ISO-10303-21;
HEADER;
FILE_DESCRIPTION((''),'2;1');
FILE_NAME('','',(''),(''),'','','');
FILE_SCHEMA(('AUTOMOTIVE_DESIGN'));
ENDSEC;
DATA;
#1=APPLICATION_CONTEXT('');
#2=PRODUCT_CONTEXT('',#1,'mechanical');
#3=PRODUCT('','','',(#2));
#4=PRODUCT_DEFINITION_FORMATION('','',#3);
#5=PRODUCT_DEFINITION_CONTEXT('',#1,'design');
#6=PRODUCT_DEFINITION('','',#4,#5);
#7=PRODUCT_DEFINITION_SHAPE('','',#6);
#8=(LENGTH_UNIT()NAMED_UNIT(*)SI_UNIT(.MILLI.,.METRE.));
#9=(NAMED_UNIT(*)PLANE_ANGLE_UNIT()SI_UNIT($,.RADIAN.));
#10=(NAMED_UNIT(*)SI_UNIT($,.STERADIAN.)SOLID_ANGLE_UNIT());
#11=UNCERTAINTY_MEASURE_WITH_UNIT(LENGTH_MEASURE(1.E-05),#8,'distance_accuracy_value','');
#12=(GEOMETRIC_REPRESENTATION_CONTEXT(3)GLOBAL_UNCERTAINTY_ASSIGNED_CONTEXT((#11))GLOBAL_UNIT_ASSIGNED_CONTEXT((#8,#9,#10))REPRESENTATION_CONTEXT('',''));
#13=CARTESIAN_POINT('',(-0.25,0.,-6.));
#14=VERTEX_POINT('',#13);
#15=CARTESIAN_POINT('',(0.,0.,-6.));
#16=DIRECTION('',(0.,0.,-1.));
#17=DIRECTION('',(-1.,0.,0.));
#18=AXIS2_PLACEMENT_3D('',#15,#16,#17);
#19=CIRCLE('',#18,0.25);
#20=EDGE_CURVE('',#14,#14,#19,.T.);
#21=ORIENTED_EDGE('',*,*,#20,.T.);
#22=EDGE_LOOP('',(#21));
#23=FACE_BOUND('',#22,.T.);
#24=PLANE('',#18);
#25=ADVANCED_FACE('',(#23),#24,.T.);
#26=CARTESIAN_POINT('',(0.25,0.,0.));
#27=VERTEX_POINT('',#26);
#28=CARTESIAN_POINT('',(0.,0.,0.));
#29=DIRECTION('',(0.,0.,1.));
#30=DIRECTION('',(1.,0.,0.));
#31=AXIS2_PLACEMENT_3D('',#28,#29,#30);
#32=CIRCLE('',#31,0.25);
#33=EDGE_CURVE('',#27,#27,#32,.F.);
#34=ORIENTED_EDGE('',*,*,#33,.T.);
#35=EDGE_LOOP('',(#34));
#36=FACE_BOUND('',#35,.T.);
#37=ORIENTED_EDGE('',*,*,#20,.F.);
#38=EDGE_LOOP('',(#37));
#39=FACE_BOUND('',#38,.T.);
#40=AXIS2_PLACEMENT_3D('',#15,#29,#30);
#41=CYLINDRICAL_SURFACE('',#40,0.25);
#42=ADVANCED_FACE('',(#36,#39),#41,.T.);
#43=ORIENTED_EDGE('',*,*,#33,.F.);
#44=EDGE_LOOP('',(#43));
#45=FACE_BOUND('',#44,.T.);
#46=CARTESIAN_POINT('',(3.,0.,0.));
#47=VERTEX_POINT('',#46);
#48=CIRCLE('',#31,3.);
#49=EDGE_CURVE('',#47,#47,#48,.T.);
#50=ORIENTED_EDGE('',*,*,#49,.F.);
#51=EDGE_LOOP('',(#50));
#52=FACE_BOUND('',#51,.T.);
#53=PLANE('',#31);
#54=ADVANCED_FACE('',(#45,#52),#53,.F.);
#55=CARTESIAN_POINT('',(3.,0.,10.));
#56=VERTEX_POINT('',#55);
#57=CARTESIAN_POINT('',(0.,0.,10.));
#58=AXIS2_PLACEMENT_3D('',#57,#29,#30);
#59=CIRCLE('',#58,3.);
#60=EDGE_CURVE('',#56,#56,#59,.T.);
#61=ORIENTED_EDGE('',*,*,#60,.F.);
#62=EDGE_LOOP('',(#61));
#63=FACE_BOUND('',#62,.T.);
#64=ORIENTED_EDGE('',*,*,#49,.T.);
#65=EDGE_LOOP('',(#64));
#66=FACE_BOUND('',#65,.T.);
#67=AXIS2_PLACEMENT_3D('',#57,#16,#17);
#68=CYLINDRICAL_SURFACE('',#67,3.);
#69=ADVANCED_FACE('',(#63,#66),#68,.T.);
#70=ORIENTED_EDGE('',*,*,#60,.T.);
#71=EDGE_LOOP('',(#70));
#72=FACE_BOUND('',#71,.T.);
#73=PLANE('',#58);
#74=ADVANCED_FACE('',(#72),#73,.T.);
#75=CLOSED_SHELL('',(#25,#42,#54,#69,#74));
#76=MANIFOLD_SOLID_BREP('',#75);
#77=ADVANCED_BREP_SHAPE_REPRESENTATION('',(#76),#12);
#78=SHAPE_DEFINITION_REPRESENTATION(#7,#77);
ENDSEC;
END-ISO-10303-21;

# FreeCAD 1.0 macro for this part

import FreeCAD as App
import Part
import Sketcher

V = App.Vector
Q = App.Units.Quantity

doc = App.newDocument("Part")
body = doc.addObject("PartDesign::Body", "Body")

# Sketch on XY plane
sketch1 = body.newObject("Sketcher::SketchObject", "Sketch")
sketch1.AttachmentSupport = (doc.getObject("XY_Plane"), [""])
sketch1.MapMode = "FlatFace"
sketch1.addGeometry(Part.Circle(V(0, 0, 0), V(0, 0, 1), 3), False)
sketch1.addConstraint([
    Sketcher.Constraint("Coincident", 0, 3, -1, 1),
    Sketcher.Constraint("Diameter", 0, Q("6 mm")),
])
pad1 = body.newObject("PartDesign::Pad", "Pad")
pad1.Profile = sketch1
pad1.Length = 10

# Sketch on XY plane
sketch2 = body.newObject("Sketcher::SketchObject", "Sketch001")
sketch2.AttachmentSupport = (doc.getObject("XY_Plane"), [""])
sketch2.MapMode = "FlatFace"
sketch2.addGeometry(Part.Circle(V(0, 0, 0), V(0, 0, 1), 0.25), False)
sketch2.addConstraint([
    Sketcher.Constraint("Coincident", 0, 3, -1, 1),
    Sketcher.Constraint("Diameter", 0, Q("0.5 mm")),
])
pad2 = body.newObject("PartDesign::Pad", "Pad001")
pad2.Profile = sketch2
pad2.Length = 6
pad2.Reversed = True

doc.recompute()
